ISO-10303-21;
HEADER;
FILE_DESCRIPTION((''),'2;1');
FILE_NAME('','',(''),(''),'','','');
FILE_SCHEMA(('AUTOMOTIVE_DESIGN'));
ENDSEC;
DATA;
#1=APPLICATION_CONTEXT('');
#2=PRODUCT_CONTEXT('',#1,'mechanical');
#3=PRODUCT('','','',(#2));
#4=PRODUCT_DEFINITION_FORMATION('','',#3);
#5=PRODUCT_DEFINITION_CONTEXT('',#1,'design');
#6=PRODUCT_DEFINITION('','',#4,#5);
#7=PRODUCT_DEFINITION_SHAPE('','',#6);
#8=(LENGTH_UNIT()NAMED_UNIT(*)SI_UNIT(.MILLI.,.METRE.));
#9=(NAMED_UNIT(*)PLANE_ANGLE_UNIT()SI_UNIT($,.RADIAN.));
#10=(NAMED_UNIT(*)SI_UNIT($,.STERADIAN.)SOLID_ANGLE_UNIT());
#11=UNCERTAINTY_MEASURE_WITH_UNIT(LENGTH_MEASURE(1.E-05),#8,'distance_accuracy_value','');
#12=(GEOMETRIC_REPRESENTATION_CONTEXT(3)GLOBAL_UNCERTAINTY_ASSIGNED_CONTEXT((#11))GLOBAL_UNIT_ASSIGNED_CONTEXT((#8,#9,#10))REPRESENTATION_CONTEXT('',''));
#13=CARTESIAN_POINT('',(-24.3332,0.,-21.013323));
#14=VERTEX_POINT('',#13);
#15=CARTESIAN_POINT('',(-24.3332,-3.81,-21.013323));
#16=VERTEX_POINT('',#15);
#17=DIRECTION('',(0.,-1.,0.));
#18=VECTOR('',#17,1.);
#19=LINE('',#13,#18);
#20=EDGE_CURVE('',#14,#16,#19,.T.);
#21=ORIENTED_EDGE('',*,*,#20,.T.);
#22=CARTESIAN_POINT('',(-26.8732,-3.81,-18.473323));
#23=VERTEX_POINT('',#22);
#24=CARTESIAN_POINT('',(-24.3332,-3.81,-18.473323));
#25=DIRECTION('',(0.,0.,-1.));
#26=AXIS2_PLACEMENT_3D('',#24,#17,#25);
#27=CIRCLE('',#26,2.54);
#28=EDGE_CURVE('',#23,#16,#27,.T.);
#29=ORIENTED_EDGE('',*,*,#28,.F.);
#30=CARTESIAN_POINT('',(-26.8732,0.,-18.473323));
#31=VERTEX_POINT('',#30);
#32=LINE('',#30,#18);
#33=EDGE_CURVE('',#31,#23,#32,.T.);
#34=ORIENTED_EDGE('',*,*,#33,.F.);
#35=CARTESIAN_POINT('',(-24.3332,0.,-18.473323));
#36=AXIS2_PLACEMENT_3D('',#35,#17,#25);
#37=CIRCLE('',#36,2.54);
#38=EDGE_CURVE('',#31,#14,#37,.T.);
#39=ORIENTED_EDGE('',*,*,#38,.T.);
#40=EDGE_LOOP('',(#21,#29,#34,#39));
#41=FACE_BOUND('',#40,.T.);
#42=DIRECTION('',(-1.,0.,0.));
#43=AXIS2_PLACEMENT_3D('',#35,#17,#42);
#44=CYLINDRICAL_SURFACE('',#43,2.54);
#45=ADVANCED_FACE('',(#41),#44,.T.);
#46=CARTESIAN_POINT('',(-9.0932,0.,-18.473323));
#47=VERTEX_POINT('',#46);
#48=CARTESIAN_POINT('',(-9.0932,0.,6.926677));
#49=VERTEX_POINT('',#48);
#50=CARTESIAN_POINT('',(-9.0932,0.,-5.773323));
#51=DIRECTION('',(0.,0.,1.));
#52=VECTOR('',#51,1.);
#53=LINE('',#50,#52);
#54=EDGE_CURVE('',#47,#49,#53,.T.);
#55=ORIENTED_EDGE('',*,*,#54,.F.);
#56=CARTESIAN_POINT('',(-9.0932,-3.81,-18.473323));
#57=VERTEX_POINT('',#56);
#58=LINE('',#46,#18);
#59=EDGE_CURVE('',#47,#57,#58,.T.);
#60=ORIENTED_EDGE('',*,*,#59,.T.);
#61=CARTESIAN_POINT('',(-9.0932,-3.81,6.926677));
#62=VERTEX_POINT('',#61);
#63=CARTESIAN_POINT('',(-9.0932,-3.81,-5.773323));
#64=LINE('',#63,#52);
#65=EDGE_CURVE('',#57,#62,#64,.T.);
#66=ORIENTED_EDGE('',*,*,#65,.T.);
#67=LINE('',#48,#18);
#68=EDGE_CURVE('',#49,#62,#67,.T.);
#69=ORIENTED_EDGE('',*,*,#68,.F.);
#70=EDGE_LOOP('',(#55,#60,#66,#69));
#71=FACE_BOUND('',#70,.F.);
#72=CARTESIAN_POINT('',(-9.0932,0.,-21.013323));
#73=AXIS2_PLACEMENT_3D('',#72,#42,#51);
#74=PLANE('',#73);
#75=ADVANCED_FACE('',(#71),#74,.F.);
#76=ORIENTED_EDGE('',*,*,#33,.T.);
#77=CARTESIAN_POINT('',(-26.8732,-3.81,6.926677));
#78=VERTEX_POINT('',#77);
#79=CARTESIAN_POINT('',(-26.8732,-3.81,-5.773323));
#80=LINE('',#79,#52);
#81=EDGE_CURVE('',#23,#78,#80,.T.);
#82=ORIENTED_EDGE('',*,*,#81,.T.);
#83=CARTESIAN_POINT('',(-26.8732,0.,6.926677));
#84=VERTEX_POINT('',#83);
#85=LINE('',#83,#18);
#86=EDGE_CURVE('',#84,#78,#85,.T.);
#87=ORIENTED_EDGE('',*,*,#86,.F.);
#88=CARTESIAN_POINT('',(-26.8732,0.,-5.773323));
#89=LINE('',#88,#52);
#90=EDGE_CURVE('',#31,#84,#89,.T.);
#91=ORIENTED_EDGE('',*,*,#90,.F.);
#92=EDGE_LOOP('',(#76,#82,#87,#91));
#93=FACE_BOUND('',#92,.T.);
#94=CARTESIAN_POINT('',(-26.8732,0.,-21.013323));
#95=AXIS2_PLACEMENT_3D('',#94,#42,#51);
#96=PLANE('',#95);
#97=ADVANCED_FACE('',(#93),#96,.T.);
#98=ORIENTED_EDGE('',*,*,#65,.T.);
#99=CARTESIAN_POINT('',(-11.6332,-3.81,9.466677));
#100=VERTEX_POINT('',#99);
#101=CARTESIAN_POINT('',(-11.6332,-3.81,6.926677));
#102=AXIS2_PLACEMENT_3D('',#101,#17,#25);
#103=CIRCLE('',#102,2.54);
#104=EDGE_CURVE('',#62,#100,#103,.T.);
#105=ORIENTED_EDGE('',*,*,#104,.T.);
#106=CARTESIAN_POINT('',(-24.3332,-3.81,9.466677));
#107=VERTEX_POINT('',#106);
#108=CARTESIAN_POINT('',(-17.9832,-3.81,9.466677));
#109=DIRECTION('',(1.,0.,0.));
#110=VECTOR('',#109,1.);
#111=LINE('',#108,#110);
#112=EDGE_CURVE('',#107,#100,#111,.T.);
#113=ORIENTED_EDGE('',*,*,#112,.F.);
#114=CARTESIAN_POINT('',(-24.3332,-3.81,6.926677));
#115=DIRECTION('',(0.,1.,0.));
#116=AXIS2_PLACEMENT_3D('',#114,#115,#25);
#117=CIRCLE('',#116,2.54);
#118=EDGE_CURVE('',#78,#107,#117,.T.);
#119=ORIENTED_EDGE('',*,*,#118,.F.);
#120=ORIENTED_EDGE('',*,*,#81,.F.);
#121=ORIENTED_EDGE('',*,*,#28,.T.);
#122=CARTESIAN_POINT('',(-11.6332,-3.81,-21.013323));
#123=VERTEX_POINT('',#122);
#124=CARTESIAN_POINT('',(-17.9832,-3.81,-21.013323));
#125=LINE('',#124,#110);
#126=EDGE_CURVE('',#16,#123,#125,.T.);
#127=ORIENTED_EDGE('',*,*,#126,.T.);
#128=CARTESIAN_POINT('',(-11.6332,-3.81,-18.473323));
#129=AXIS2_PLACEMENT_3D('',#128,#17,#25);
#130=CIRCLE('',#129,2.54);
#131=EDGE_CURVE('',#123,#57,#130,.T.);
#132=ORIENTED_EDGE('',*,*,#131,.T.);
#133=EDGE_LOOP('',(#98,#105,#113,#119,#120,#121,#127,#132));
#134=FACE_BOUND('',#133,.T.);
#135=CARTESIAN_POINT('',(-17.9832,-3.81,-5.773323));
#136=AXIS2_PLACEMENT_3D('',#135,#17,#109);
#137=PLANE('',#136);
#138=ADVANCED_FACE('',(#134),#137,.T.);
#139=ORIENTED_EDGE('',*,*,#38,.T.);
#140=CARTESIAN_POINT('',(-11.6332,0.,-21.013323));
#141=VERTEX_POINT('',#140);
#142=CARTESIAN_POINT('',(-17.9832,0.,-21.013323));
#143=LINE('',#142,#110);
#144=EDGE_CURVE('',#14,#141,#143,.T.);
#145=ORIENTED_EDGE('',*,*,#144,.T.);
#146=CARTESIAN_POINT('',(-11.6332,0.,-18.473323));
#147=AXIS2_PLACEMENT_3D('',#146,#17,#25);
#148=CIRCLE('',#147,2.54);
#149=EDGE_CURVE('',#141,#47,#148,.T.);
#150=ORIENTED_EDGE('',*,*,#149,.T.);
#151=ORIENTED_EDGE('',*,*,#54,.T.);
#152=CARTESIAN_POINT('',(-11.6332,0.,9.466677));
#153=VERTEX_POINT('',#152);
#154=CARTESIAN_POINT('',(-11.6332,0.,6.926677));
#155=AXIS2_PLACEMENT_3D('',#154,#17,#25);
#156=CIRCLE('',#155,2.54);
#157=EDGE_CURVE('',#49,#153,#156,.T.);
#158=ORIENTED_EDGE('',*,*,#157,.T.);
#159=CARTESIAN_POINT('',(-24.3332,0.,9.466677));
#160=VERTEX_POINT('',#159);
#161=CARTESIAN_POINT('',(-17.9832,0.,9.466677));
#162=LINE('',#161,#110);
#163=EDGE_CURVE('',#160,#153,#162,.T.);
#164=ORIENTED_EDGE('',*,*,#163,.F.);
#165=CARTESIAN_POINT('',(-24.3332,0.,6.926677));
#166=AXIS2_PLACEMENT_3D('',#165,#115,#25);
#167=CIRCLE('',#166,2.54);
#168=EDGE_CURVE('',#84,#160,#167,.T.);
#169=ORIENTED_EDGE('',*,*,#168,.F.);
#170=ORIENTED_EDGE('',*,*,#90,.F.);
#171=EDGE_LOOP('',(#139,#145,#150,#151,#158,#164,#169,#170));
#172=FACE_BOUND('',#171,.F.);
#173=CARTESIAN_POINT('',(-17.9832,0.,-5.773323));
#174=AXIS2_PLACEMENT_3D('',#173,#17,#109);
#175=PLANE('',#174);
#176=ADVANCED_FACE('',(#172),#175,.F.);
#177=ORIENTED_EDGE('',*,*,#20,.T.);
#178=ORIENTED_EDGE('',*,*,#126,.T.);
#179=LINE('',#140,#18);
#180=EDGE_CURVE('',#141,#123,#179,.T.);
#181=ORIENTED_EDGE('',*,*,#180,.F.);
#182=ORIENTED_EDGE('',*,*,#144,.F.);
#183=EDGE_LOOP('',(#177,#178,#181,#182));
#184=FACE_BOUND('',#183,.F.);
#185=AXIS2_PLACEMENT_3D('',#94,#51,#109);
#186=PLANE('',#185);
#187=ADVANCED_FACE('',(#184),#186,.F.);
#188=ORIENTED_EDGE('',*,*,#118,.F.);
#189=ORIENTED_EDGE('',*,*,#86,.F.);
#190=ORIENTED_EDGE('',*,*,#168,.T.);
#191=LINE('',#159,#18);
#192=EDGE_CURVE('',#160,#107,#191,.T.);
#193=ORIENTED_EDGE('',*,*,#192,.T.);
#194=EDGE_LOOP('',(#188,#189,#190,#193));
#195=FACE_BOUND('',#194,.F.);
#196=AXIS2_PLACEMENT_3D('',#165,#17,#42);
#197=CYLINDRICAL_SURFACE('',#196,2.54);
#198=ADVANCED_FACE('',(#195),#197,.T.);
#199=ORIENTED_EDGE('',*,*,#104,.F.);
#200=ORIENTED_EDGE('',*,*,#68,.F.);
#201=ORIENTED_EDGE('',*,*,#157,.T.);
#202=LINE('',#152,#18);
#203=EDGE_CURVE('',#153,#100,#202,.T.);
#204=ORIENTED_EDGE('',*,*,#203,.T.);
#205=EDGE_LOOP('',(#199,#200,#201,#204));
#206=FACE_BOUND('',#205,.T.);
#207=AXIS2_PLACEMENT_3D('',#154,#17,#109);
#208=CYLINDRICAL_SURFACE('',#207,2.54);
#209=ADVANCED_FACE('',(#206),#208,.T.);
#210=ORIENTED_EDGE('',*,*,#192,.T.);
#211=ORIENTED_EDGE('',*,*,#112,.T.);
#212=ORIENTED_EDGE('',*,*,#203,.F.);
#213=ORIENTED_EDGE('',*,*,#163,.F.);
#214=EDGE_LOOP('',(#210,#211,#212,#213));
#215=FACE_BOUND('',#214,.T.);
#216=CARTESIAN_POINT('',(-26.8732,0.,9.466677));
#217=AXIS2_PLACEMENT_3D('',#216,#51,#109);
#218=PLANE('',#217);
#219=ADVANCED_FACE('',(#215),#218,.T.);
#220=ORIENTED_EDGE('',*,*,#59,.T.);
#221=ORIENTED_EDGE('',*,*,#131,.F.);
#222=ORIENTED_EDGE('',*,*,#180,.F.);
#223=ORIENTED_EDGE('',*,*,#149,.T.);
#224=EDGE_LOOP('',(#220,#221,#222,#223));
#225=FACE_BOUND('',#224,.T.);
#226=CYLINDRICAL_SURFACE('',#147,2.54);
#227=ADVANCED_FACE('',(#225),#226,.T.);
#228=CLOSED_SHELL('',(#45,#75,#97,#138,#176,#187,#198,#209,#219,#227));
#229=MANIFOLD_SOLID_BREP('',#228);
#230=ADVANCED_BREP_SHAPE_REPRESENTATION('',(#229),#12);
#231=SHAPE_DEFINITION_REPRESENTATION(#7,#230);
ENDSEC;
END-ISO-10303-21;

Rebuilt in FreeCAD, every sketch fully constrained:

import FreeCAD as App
import Part
import Sketcher
Q = App.Units.Quantity


def edges_at(feature, points):
    """Names of the edges that pass closest to the given points."""
    edges = feature.Shape.Edges
    near = lambda p: min(range(len(edges)), key=lambda i: edges[i].distToShape(Part.Vertex(*p))[0])
    return sorted({f"Edge{near(p) + 1}" for p in points})


def add_polygon(sketch, points):
    """Adds a closed chain of lines whose ends are joined by coincident constraints."""
    first, n = sketch.GeometryCount, len(points)
    for a, b in zip(points, points[1:] + points[:1]):
        sketch.addGeometry(Part.LineSegment(App.Vector(*a, 0), App.Vector(*b, 0)), False)
    for i in range(n):
        sketch.addConstraint(Sketcher.Constraint("Coincident", first + i, 2, first + (i + 1) % n, 1))

doc = App.newDocument("Part")
params = doc.addObject("Spreadsheet::Sheet", "Params")
for row, (alias, value) in enumerate([
    ("sketch1_width", "0.7 in"),
    ("sketch1_height", "1.2 in"),
    ("pad1_length", "0.15 in"),
    ("fillet_radius", "0.1 in"),
    ("fillet2_radius", "0.1 in"),
], start=1):
    params.set(f"A{row}", alias)
    params.set(f"B{row}", "=" + value)
    params.setAlias(f"B{row}", alias)

body = doc.addObject("PartDesign::Body", "Body")

# Sketch on XZ plane
sketch1 = body.newObject("Sketcher::SketchObject", "Sketch")
sketch1.AttachmentSupport = (doc.getObject("XZ_Plane"), [""])
sketch1.MapMode = "FlatFace"
add_polygon(sketch1, [(-26.8732, 9.466677), (-26.8732, -21.013323), (-9.0932, -21.013323), (-9.0932, 9.466677)])  # lines 0-3
sketch1.addConstraint(Sketcher.Constraint("Vertical", 0))
sketch1.addConstraint(Sketcher.Constraint("Horizontal", 1))
sketch1.addConstraint(Sketcher.Constraint("Vertical", 2))
sketch1.addConstraint(Sketcher.Constraint("Horizontal", 3))
sketch1.addConstraint(Sketcher.Constraint("DistanceX", 1, 1, 1, 2, Q("0.7 in")))
sketch1.addConstraint(Sketcher.Constraint("DistanceY", 0, 2, 0, 1, Q("1.2 in")))
sketch1.addConstraint(Sketcher.Constraint("DistanceX", 0, 2, -1, 1, Q("1.058 in")))
sketch1.addConstraint(Sketcher.Constraint("DistanceY", 0, 2, -1, 1, 21.013323))
sketch1.setExpression("Constraints[8]", "Params.sketch1_width")
sketch1.setExpression("Constraints[9]", "Params.sketch1_height")
pad1 = body.newObject("PartDesign::Pad", "Pad")
pad1.Profile = sketch1
pad1.setExpression("Length", "Params.pad1_length")
doc.recompute()

fillet = body.newObject("PartDesign::Fillet", "Fillet")
fillet.Base = (pad1, edges_at(pad1, [(-9.093, -1.905, 9.467), (-26.873, -1.905, 9.467)]))
fillet.setExpression("Radius", "Params.fillet_radius")
doc.recompute()

fillet2 = body.newObject("PartDesign::Fillet", "Fillet001")
fillet2.Base = (fillet, edges_at(fillet, [(-26.873, -1.905, -21.013), (-9.093, -1.905, -21.013)]))
fillet2.setExpression("Radius", "Params.fillet2_radius")

doc.recompute()
